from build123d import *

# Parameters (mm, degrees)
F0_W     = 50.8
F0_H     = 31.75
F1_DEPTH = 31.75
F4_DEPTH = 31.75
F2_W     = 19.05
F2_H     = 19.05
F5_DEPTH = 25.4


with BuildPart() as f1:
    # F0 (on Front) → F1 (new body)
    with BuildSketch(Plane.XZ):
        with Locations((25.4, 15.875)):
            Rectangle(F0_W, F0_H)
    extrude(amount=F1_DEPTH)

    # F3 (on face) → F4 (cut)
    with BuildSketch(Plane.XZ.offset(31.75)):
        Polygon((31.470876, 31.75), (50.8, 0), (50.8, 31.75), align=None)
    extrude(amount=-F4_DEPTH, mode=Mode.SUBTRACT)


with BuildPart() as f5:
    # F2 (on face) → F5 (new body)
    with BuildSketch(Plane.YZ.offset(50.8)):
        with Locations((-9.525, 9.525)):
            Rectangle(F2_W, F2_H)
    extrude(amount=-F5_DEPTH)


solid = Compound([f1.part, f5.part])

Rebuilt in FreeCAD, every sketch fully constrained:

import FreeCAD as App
import Part
import Sketcher

V = App.Vector
Q = App.Units.Quantity

doc = App.newDocument("Part")
body = doc.addObject("PartDesign::Body", "Body")

sketch1 = doc.addObject("Sketcher::SketchObject", "Sketch")
body.addObject(sketch1)
sketch1.AttachmentSupport = (doc.XZ_Plane, [""])
sketch1.MapMode = "FlatFace"
sketch1.addGeometry(Part.LineSegment(V(0, 32, 0), V(0, 0, 0)), False)
sketch1.addGeometry(Part.LineSegment(V(0, 0, 0), V(51, 0, 0)), False)
sketch1.addGeometry(Part.LineSegment(V(51, 0, 0), V(51, 32, 0)), False)
sketch1.addGeometry(Part.LineSegment(V(51, 32, 0), V(0, 32, 0)), False)
sketch1.addConstraint(Sketcher.Constraint("Coincident", 0, 2, 1, 1))
sketch1.addConstraint(Sketcher.Constraint("Coincident", 1, 2, 2, 1))
sketch1.addConstraint(Sketcher.Constraint("Coincident", 2, 2, 3, 1))
sketch1.addConstraint(Sketcher.Constraint("Coincident", 3, 2, 0, 1))
sketch1.addConstraint(Sketcher.Constraint("Vertical", 0))
sketch1.addConstraint(Sketcher.Constraint("Horizontal", 1))
sketch1.addConstraint(Sketcher.Constraint("Vertical", 2))
sketch1.addConstraint(Sketcher.Constraint("Horizontal", 3))
sketch1.addConstraint(Sketcher.Constraint("Coincident", 0, 2, -1, 1))
sketch1.addConstraint(Sketcher.Constraint("DistanceX", 1, 1, 1, 2, Q("2 in")))
sketch1.addConstraint(Sketcher.Constraint("DistanceY", 0, 2, 0, 1, Q("1.25 in")))
pad1 = doc.addObject("PartDesign::Pad", "Pad")
body.addObject(pad1)
pad1.Profile = sketch1
pad1.Length = Q("1.25 in")

sketch2 = doc.addObject("Sketcher::SketchObject", "Sketch001")
body.addObject(sketch2)
sketch2.AttachmentSupport = (doc.XZ_Plane, [""])
sketch2.MapMode = "FlatFace"
sketch2.AttachmentOffset = App.Placement(V(0, 0, 1.25 * 25.4), App.Rotation())
sketch2.addGeometry(Part.LineSegment(V(31, 32, 0), V(51, 0, 0)), False)
sketch2.addGeometry(Part.LineSegment(V(51, 0, 0), V(51, 32, 0)), False)
sketch2.addGeometry(Part.LineSegment(V(51, 32, 0), V(31, 32, 0)), False)
sketch2.addConstraint(Sketcher.Constraint("Coincident", 0, 2, 1, 1))
sketch2.addConstraint(Sketcher.Constraint("Coincident", 1, 2, 2, 1))
sketch2.addConstraint(Sketcher.Constraint("Coincident", 2, 2, 0, 1))
sketch2.addConstraint(Sketcher.Constraint("Vertical", 1))
sketch2.addConstraint(Sketcher.Constraint("Horizontal", 2))
sketch2.addConstraint(Sketcher.Constraint("PointOnObject", 0, 2, -1))
sketch2.addConstraint(Sketcher.Constraint("DistanceX", -1, 1, 0, 2, Q("2 in")))
sketch2.addConstraint(Sketcher.Constraint("DistanceY", 1, 1, 1, 2, Q("1.25 in")))
sketch2.addConstraint(Sketcher.Constraint("DistanceX", 2, 2, 2, 1, 19.329124))
pocket1 = doc.addObject("PartDesign::Pocket", "Pocket")
body.addObject(pocket1)
pocket1.Profile = sketch2
pocket1.Length = Q("1.25 in")
body2 = doc.addObject("PartDesign::Body", "Body001")

sketch3 = doc.addObject("Sketcher::SketchObject", "Sketch002")
body2.addObject(sketch3)
sketch3.AttachmentSupport = (doc.getObject("YZ_Plane001"), [""])
sketch3.MapMode = "FlatFace"
sketch3.AttachmentOffset = App.Placement(V(0, 0, 2 * 25.4), App.Rotation())
sketch3.addGeometry(Part.LineSegment(V(-19, 19, 0), V(-19, 0, 0)), False)
sketch3.addGeometry(Part.LineSegment(V(-19, 0, 0), V(0, 0, 0)), False)
sketch3.addGeometry(Part.LineSegment(V(0, 0, 0), V(0, 19, 0)), False)
sketch3.addGeometry(Part.LineSegment(V(0, 19, 0), V(-19, 19, 0)), False)
sketch3.addConstraint(Sketcher.Constraint("Coincident", 0, 2, 1, 1))
sketch3.addConstraint(Sketcher.Constraint("Coincident", 1, 2, 2, 1))
sketch3.addConstraint(Sketcher.Constraint("Coincident", 2, 2, 3, 1))
sketch3.addConstraint(Sketcher.Constraint("Coincident", 3, 2, 0, 1))
sketch3.addConstraint(Sketcher.Constraint("Vertical", 0))
sketch3.addConstraint(Sketcher.Constraint("Horizontal", 1))
sketch3.addConstraint(Sketcher.Constraint("Vertical", 2))
sketch3.addConstraint(Sketcher.Constraint("Horizontal", 3))
sketch3.addConstraint(Sketcher.Constraint("Coincident", 1, 2, -1, 1))
sketch3.addConstraint(Sketcher.Constraint("Equal", 3, 0))
sketch3.addConstraint(Sketcher.Constraint("DistanceX", 1, 1, 1, 2, Q("0.75 in")))
pad2 = doc.addObject("PartDesign::Pad", "Pad001")
body2.addObject(pad2)
pad2.Profile = sketch3
pad2.Length = Q("1 in")
pad2.Reversed = True

doc.recompute()
